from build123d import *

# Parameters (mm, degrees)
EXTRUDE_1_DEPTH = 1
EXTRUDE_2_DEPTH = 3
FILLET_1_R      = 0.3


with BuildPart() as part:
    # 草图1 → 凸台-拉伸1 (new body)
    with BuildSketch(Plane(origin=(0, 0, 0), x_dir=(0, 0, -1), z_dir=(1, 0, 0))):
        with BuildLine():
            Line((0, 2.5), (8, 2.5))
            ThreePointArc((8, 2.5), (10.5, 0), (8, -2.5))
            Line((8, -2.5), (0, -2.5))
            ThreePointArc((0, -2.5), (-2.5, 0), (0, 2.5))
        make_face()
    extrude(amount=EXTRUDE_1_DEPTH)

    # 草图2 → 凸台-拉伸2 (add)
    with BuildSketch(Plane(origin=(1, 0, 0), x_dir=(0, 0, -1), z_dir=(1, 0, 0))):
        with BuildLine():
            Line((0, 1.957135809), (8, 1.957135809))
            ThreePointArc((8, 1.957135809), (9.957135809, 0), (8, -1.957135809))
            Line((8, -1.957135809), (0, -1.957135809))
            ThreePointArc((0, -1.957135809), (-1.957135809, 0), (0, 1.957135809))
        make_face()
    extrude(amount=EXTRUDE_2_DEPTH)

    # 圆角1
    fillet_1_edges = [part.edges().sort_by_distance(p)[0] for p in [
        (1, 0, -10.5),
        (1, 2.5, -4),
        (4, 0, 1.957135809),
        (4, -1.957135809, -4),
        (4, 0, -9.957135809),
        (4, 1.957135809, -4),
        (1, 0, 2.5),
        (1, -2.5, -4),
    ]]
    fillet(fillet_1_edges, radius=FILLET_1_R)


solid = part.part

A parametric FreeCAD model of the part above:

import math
import FreeCAD as App
import Part
import Sketcher
from FreeCAD import Vector


def edges_at(feature, points):
    """Names of the edges that pass closest to the given points."""
    edges = feature.Shape.Edges
    near = lambda p: min(range(len(edges)), key=lambda i: edges[i].distToShape(Part.Vertex(*p))[0])
    return sorted({f"Edge{near(p) + 1}" for p in points})

doc = App.newDocument("Part")
params = doc.addObject("Spreadsheet::Sheet", "Params")
for row, (alias, value) in enumerate([
    ("sketch1_radius", "2.5 mm"),
    ("sketch1_height", "8 mm"),
    ("pad1_length", "1 mm"),
    ("sketch2_height", "8 mm"),
    ("pad2_length", "3 mm"),
    ("fillet_radius", "0.3 mm"),
], start=1):
    params.set(f"A{row}", alias)
    params.set(f"B{row}", "=" + value)
    params.setAlias(f"B{row}", alias)

body = doc.addObject("PartDesign::Body", "Body")

sketch1 = doc.addObject("Sketcher::SketchObject", "Sketch")
body.addObject(sketch1)
sketch1.AttachmentSupport = (doc.YZ_Plane, [""])
sketch1.MapMode = "FlatFace"
sketch1.addGeometry([
    Part.LineSegment(Vector(2.5, -8, 0), Vector(2.5, 0, 0)),
    Part.ArcOfCircle(Part.Circle(Vector(0, 0, 0), Vector(0, 0, 1), 2.5), math.radians(0), math.radians(180)),
    Part.LineSegment(Vector(-2.5, 0, 0), Vector(-2.5, -8, 0)),
    Part.ArcOfCircle(Part.Circle(Vector(0, -8, 0), Vector(0, 0, 1), 2.5), math.radians(180), math.radians(360)),
], False)
sketch1.addConstraint([
    Sketcher.Constraint("Tangent", 0, 2, 1, 1),
    Sketcher.Constraint("Tangent", 1, 2, 2, 1),
    Sketcher.Constraint("Tangent", 2, 2, 3, 1),
    Sketcher.Constraint("Tangent", 3, 2, 0, 1),
    Sketcher.Constraint("Vertical", 0),
    Sketcher.Constraint("Vertical", 2),
    Sketcher.Constraint("Coincident", 1, 3, -1, 1),
    Sketcher.Constraint("Radius", 1, 2.5),
    Sketcher.Constraint("DistanceY", 0, 1, 0, 2, 8.0),
])
sketch1.setExpression("Constraints[7]", "Params.sketch1_radius")
sketch1.setExpression("Constraints[8]", "Params.sketch1_height")
pad1 = doc.addObject("PartDesign::Pad", "Pad")
body.addObject(pad1)
pad1.Profile = sketch1
pad1.setExpression("Length", "Params.pad1_length")

sketch2 = doc.addObject("Sketcher::SketchObject", "Sketch001")
body.addObject(sketch2)
sketch2.AttachmentSupport = (doc.YZ_Plane, [""])
sketch2.MapMode = "FlatFace"
sketch2.AttachmentOffset = App.Placement(Vector(0, 0, 1), App.Rotation())
sketch2.addGeometry([
    Part.LineSegment(Vector(1.957136, -8, 0), Vector(1.957136, 0, 0)),
    Part.ArcOfCircle(Part.Circle(Vector(0, 0, 0), Vector(0, 0, 1), 1.957136), math.radians(0), math.radians(180)),
    Part.LineSegment(Vector(-1.957136, 0, 0), Vector(-1.957136, -8, 0)),
    Part.ArcOfCircle(Part.Circle(Vector(0, -8, 0), Vector(0, 0, 1), 1.957136), math.radians(180), math.radians(360)),
], False)
sketch2.addConstraint([
    Sketcher.Constraint("Tangent", 0, 2, 1, 1),
    Sketcher.Constraint("Tangent", 1, 2, 2, 1),
    Sketcher.Constraint("Tangent", 2, 2, 3, 1),
    Sketcher.Constraint("Tangent", 3, 2, 0, 1),
    Sketcher.Constraint("Vertical", 0),
    Sketcher.Constraint("Vertical", 2),
    Sketcher.Constraint("Coincident", 1, 3, -1, 1),
    Sketcher.Constraint("DistanceY", 0, 1, 0, 2, 8.0),
    Sketcher.Constraint("Radius", 1, 1.957136),
])
sketch2.setExpression("Constraints[7]", "Params.sketch2_height")
pad2 = doc.addObject("PartDesign::Pad", "Pad001")
body.addObject(pad2)
pad2.Profile = sketch2
pad2.setExpression("Length", "Params.pad2_length")
doc.recompute()

fillet = doc.addObject("PartDesign::Fillet", "Fillet")
body.addObject(fillet)
fillet.Base = (pad2, edges_at(pad2, [
    (1, 0, -10.5),
    (1, 2.5, -4),
    (4, 0, 1.957),
    (4, -1.957, -4),
    (4, 0, -9.957),
    (4, 1.957, -4),
    (1, 0, 2.5),
    (1, -2.5, -4),
]))
fillet.setExpression("Radius", "Params.fillet_radius")

doc.recompute()
